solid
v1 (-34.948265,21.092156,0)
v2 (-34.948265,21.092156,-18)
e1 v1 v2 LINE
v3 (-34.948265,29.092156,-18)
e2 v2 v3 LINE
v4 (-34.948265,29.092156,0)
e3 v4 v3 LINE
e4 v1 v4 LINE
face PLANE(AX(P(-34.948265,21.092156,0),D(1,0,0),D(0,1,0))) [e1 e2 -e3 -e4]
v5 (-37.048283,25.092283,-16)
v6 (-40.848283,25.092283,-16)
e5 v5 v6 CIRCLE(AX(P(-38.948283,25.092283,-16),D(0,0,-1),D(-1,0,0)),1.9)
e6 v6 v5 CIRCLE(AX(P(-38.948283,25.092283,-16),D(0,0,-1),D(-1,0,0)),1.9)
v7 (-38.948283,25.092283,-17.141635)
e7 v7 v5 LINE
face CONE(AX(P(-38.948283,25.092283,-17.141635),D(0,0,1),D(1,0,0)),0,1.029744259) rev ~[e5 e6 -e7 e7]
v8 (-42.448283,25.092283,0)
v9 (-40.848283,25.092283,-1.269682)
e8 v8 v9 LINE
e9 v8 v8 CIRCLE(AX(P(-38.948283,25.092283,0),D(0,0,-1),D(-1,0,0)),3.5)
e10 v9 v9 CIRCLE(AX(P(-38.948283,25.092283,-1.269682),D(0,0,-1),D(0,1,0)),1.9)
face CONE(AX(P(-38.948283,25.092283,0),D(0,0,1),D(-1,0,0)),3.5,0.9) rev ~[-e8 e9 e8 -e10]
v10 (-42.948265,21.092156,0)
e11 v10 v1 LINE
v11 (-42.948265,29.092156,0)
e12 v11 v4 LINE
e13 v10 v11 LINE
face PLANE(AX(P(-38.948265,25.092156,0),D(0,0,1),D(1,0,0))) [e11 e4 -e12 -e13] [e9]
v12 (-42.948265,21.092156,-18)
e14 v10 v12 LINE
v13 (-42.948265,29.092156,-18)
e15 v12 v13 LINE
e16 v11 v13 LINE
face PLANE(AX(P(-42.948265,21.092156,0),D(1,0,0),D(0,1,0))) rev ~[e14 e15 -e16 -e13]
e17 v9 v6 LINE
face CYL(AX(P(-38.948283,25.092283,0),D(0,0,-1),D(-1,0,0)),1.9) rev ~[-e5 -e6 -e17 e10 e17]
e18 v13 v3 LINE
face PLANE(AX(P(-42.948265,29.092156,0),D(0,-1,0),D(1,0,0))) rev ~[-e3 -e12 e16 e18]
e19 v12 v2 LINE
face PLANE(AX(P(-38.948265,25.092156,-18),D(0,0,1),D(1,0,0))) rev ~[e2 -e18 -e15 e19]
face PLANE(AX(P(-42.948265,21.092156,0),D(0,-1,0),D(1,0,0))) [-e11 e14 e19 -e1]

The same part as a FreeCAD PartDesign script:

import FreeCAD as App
import Part
import Sketcher

V = App.Vector

doc = App.newDocument("Part")
body = doc.addObject("PartDesign::Body", "Body")

sketch1 = body.newObject("Sketcher::SketchObject", "Sketch")
sketch1.AttachmentSupport = (doc.getObject("XY_Plane"), [""])
sketch1.MapMode = "FlatFace"
sketch1.addGeometry(Part.LineSegment(V(-42.948265, 29.092156, 0), V(-42.948265, 21.092156, 0)), False)
sketch1.addGeometry(Part.LineSegment(V(-42.948265, 21.092156, 0), V(-34.948265, 21.092156, 0)), False)
sketch1.addGeometry(Part.LineSegment(V(-34.948265, 21.092156, 0), V(-34.948265, 29.092156, 0)), False)
sketch1.addGeometry(Part.LineSegment(V(-34.948265, 29.092156, 0), V(-42.948265, 29.092156, 0)), False)
sketch1.addConstraint(Sketcher.Constraint("Coincident", 0, 2, 1, 1))
sketch1.addConstraint(Sketcher.Constraint("Coincident", 1, 2, 2, 1))
sketch1.addConstraint(Sketcher.Constraint("Coincident", 2, 2, 3, 1))
sketch1.addConstraint(Sketcher.Constraint("Coincident", 3, 2, 0, 1))
sketch1.addConstraint(Sketcher.Constraint("Vertical", 0))
sketch1.addConstraint(Sketcher.Constraint("Horizontal", 1))
sketch1.addConstraint(Sketcher.Constraint("Vertical", 2))
sketch1.addConstraint(Sketcher.Constraint("Horizontal", 3))
sketch1.addConstraint(Sketcher.Constraint("Equal", 3, 0))
sketch1.addConstraint(Sketcher.Constraint("DistanceX", 1, 1, 1, 2, 8.0))
sketch1.addConstraint(Sketcher.Constraint("DistanceX", 0, 2, -1, 1, 42.948265))
sketch1.addConstraint(Sketcher.Constraint("DistanceY", -1, 1, 0, 2, 21.092156))
pad1 = body.newObject("PartDesign::Pad", "Pad")
pad1.Profile = sketch1
pad1.Length = 18
pad1.Reversed = True

sketch2 = body.newObject("Sketcher::SketchObject", "Sketch001")
sketch2.AttachmentSupport = (doc.getObject("XY_Plane"), [""])
sketch2.MapMode = "FlatFace"
sketch2.addGeometry(Part.Circle(V(-38.948283, 25.092283, 0), V(0, 0, 1), 1.9), False)
sketch2.addConstraint(Sketcher.Constraint("Diameter", 0, 3.8))
sketch2.addConstraint(Sketcher.Constraint("DistanceX", 0, 3, -1, 1, 38.948283))
sketch2.addConstraint(Sketcher.Constraint("DistanceY", -1, 1, 0, 3, 25.092283))
doc.recompute()
hole = body.newObject("PartDesign::Hole", "Hole")
hole.Profile = sketch2
hole.ThreadType = "None"
hole.Diameter = 3.8
hole.DepthType = "Dimension"
hole.Depth = 16
hole.DrillPoint = "Angled"
hole.DrillPointAngle = 118
hole.HoleCutType = "Countersink"
hole.HoleCutDiameter = 7
hole.HoleCutCountersinkAngle = 103.132403

doc.recompute()
